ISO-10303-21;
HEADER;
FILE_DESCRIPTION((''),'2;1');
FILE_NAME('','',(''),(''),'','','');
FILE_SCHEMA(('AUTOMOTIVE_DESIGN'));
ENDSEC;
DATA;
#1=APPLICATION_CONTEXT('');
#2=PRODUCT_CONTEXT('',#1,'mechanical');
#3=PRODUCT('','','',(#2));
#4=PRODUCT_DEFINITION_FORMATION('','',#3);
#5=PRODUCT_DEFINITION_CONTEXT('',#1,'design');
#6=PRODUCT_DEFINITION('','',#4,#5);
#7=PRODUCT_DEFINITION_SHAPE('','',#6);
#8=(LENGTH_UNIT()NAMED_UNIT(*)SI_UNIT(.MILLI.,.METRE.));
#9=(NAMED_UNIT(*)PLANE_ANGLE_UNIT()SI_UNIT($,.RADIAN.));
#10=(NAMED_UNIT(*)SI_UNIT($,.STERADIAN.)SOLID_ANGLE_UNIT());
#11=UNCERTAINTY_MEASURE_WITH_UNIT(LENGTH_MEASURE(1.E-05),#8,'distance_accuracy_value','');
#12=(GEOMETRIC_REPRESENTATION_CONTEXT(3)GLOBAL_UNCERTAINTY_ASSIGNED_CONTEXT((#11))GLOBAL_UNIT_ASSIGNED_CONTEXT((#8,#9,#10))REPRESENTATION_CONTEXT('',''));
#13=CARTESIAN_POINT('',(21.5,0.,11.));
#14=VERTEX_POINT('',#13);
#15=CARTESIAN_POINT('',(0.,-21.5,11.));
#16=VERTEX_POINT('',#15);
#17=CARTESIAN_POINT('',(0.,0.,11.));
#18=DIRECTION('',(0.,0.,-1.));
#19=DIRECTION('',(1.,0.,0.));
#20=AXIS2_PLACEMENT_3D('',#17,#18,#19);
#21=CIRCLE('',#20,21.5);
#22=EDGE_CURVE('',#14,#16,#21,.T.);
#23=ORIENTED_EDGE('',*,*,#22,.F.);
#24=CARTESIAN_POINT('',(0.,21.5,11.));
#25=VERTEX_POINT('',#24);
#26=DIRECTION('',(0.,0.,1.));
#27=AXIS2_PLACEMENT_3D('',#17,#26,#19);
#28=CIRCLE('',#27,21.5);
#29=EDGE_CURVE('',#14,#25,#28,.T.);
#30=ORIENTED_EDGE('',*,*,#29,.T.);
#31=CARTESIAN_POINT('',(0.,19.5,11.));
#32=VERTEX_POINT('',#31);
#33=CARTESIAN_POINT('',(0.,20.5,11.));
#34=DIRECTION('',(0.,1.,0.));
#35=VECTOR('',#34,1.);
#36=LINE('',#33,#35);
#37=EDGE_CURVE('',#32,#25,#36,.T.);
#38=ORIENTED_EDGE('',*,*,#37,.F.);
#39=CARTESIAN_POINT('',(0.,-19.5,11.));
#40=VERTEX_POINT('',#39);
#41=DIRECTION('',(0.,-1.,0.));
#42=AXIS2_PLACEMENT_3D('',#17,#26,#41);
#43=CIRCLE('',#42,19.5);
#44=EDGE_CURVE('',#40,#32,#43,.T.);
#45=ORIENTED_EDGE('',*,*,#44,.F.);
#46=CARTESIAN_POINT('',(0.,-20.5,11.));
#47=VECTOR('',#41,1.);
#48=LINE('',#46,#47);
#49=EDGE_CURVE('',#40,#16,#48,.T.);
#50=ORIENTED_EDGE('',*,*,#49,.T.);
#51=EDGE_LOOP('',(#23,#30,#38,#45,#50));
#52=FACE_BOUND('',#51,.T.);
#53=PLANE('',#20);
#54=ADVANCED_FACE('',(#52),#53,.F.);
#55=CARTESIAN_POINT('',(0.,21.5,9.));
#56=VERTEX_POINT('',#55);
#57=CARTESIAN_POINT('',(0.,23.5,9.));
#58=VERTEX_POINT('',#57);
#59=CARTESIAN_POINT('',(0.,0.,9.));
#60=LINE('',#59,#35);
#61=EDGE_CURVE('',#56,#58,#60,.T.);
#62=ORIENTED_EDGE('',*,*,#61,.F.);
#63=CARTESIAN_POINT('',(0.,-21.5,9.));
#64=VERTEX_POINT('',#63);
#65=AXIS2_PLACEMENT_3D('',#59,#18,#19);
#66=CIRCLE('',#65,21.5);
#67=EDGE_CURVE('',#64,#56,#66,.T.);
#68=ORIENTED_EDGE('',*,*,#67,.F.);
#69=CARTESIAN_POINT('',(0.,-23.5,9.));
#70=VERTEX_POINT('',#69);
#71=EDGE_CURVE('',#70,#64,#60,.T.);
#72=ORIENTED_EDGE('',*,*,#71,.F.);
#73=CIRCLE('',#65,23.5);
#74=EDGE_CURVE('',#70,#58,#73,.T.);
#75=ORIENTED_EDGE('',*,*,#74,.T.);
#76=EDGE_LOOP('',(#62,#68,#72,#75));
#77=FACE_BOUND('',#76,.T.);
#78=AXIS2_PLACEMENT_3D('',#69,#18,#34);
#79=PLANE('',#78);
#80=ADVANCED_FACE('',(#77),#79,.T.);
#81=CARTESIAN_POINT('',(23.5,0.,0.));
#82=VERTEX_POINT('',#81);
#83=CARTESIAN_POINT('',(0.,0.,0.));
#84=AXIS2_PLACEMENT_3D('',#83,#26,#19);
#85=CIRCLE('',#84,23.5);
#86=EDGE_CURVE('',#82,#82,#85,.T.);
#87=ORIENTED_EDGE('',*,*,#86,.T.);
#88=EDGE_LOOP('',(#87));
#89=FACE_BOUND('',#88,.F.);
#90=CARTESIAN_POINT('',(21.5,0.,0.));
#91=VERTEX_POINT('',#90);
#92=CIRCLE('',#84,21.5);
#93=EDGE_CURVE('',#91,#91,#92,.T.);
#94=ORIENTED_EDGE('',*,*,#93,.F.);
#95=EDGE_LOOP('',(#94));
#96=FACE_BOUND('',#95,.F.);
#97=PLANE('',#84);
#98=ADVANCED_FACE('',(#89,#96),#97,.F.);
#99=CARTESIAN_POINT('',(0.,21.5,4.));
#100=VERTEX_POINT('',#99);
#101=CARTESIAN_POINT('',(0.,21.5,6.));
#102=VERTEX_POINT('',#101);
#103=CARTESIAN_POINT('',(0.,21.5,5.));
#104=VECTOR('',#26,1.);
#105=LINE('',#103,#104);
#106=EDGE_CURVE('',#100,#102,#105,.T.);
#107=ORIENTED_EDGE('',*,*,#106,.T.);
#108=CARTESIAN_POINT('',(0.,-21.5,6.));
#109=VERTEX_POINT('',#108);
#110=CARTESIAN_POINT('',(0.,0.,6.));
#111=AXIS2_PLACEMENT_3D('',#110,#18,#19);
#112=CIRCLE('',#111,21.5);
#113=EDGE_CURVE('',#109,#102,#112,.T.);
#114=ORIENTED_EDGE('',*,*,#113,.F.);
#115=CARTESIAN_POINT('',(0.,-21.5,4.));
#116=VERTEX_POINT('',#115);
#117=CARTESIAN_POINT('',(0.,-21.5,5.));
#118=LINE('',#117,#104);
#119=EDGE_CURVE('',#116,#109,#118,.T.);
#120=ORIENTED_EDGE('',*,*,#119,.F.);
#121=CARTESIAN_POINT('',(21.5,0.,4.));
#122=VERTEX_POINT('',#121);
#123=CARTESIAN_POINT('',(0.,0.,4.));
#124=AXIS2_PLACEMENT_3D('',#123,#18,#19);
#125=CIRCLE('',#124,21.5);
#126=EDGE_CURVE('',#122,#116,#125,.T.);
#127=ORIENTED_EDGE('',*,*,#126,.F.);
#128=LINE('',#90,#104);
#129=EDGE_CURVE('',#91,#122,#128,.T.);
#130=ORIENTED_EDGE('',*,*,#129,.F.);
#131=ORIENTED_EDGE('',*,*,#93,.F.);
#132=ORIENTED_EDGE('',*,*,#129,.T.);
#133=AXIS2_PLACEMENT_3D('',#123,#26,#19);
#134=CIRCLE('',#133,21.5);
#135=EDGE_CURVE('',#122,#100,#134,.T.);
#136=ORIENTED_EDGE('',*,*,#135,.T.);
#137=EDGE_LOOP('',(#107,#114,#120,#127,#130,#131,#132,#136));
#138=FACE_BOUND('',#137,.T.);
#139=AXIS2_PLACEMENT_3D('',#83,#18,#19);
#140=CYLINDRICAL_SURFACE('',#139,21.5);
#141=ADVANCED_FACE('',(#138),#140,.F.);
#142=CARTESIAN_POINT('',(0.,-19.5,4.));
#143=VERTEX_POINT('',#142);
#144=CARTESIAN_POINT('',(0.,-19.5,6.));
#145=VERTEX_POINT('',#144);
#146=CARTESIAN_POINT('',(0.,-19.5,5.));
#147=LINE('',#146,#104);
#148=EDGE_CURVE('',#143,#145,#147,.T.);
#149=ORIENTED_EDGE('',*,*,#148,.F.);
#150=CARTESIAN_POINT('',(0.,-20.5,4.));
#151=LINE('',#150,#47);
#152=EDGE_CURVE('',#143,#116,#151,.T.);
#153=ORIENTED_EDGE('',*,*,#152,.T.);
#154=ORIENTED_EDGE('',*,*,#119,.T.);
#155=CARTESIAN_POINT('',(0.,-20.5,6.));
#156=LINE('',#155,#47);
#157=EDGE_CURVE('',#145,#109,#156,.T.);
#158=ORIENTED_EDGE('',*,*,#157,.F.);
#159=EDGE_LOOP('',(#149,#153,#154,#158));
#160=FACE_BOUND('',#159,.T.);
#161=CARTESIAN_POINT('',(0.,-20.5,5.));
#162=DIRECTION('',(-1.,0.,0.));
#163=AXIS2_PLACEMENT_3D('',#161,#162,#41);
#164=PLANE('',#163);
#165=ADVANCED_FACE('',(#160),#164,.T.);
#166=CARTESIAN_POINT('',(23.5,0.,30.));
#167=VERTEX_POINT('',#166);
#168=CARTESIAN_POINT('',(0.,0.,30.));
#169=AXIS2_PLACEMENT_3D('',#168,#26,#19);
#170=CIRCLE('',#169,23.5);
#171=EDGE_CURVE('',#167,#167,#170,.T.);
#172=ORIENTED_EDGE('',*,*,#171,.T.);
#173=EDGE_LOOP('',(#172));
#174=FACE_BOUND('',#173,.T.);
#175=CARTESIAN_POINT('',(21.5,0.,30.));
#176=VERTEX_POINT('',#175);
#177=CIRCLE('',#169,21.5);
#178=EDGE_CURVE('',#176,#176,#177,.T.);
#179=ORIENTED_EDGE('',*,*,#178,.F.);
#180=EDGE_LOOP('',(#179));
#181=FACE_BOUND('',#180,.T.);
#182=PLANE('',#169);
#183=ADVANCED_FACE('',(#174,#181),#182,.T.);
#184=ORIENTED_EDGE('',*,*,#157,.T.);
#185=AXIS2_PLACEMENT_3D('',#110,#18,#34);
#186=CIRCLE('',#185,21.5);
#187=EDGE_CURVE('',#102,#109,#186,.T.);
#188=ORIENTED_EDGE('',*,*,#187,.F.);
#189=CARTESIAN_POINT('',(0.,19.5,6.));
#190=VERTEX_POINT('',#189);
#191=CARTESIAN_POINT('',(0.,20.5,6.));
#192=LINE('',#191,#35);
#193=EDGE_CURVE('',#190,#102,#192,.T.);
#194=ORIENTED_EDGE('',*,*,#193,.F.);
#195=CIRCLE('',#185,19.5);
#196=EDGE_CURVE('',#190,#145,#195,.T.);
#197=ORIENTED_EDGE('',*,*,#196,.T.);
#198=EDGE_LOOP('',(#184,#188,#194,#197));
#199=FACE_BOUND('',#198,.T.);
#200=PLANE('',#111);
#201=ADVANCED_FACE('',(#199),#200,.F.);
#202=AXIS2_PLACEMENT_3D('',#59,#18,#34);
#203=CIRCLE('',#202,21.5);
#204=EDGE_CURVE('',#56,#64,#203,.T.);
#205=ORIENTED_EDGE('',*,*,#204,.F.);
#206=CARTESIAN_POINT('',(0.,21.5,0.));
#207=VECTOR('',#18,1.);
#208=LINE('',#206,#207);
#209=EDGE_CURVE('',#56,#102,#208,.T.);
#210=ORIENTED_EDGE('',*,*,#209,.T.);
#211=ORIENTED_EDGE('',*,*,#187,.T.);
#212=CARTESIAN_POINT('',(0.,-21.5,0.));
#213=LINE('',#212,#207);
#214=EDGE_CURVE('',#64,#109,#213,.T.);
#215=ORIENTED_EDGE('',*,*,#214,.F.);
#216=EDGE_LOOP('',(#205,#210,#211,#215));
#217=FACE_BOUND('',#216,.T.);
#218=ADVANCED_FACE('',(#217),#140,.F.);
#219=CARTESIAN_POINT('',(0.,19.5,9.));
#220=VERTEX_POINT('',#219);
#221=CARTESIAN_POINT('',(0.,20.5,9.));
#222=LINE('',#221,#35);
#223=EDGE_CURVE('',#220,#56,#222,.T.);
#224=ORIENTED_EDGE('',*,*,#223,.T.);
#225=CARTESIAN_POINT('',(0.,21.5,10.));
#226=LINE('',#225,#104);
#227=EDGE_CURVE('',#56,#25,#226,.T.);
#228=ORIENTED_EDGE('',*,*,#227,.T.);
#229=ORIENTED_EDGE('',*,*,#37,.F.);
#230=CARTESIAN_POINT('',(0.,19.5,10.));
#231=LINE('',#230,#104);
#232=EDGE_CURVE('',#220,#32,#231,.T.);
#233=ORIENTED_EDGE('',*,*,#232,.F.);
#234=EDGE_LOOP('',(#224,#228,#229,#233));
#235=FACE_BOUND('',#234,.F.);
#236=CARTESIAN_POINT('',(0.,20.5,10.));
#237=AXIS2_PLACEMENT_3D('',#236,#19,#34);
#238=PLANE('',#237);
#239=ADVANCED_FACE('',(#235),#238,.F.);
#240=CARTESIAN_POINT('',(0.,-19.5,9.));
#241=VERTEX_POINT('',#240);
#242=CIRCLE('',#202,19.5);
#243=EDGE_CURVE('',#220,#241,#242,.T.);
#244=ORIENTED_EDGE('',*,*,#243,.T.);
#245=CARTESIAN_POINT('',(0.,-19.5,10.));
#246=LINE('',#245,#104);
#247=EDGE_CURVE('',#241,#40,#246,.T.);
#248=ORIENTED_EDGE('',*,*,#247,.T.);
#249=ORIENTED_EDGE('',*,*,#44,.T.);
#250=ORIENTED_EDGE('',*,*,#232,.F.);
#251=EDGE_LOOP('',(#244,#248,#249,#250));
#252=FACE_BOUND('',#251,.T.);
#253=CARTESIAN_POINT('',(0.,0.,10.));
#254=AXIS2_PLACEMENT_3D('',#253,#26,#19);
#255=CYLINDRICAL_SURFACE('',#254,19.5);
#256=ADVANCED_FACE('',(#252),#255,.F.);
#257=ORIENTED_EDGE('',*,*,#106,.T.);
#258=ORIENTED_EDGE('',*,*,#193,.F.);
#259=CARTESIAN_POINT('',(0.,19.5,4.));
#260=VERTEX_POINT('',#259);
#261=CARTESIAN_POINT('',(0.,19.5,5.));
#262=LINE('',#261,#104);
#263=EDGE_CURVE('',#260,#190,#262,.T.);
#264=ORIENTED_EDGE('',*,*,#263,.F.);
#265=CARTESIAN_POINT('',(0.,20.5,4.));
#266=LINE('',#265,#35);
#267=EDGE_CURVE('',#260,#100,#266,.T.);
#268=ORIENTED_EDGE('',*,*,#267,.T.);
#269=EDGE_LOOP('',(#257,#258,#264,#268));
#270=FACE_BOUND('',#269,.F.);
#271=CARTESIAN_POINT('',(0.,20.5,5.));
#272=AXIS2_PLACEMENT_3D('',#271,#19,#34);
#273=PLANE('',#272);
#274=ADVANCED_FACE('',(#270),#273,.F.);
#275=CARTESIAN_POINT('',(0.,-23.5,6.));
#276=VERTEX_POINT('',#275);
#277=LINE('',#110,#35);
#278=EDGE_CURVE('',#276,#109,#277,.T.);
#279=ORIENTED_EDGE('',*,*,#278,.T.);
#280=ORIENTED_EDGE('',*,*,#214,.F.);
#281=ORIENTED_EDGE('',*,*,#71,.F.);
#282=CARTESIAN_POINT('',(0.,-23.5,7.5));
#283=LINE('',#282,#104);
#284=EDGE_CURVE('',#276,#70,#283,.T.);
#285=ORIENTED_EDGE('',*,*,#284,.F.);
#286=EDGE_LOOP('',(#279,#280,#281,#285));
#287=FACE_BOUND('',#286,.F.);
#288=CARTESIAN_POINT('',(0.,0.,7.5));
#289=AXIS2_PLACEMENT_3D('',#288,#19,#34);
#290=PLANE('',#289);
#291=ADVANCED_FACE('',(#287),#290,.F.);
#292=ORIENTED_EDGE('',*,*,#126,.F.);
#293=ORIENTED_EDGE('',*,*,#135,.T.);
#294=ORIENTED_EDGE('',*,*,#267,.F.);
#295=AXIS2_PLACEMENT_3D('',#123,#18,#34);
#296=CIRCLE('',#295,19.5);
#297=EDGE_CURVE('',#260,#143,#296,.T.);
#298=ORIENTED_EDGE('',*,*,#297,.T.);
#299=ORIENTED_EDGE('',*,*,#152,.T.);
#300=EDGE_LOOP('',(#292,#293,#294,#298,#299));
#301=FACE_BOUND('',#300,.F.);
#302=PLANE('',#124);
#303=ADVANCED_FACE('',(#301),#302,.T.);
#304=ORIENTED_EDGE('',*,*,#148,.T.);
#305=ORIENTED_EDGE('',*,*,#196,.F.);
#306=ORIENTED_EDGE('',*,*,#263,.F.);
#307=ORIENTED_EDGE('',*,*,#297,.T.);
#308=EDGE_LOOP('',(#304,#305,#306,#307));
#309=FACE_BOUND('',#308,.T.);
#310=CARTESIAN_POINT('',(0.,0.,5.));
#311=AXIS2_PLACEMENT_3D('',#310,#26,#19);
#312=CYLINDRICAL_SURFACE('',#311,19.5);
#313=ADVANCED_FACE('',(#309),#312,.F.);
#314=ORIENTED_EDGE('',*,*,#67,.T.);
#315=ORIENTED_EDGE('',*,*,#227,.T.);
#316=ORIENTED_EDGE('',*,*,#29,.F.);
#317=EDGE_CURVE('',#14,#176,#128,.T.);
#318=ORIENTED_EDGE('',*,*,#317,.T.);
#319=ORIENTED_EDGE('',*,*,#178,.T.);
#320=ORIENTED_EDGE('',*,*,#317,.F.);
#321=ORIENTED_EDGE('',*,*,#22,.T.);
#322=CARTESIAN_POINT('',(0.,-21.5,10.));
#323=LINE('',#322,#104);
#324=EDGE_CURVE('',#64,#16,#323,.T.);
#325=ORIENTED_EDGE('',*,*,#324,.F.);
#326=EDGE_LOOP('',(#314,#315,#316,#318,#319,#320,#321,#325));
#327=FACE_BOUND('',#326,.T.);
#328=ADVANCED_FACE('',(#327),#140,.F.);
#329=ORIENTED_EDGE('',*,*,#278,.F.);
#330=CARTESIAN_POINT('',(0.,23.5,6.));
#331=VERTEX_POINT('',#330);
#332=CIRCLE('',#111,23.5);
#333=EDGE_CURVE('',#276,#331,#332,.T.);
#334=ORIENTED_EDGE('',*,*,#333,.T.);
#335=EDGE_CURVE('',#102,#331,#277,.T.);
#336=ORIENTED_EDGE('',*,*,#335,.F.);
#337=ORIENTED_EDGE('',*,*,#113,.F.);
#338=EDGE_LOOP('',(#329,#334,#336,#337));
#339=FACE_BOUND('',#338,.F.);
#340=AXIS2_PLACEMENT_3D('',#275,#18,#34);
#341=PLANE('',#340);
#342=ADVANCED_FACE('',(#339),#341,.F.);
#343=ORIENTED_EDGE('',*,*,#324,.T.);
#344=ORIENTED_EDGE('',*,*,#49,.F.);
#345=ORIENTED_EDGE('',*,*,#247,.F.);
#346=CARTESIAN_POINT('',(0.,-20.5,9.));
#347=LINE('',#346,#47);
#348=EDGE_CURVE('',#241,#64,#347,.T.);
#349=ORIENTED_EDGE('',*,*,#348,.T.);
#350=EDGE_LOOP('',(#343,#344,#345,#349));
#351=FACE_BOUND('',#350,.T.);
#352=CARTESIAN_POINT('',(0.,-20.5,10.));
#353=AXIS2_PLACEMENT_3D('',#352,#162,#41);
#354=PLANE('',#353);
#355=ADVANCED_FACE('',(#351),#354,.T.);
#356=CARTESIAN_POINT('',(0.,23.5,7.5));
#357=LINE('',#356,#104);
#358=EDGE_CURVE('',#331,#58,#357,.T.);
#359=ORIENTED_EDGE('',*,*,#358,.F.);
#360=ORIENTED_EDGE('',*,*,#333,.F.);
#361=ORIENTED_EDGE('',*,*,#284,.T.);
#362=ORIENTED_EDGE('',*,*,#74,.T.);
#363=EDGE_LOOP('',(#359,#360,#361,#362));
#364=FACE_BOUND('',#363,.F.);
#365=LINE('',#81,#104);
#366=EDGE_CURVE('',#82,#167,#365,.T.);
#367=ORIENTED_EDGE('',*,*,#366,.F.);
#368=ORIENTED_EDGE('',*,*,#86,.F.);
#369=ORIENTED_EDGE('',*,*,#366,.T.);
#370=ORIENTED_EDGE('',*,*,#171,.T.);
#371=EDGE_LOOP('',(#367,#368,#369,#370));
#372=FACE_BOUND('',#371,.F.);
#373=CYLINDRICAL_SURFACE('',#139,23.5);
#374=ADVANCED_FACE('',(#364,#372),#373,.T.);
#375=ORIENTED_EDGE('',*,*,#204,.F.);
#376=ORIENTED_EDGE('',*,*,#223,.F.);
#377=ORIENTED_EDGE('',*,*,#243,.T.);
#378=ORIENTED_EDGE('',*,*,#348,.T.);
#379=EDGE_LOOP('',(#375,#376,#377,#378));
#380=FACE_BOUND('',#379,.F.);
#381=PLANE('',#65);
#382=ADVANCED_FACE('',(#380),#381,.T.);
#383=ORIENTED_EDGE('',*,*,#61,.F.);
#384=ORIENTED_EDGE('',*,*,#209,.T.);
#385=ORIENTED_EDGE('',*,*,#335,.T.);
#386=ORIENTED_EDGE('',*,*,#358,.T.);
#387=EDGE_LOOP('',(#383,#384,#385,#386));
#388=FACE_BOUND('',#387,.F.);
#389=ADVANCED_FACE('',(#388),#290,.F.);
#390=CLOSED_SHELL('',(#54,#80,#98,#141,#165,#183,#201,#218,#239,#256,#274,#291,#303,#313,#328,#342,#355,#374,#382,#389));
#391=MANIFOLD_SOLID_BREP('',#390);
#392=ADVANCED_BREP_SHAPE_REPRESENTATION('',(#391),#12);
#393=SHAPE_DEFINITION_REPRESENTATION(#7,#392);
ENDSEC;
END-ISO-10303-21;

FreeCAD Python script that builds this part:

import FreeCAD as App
import Part
import Sketcher
from FreeCAD import Vector
Q = App.Units.Quantity

doc = App.newDocument("Part")
body = doc.addObject("PartDesign::Body", "Body")

sketch1 = doc.addObject("Sketcher::SketchObject", "Sketch")
body.addObject(sketch1)
sketch1.AttachmentSupport = (doc.XY_Plane, [""])
sketch1.MapMode = "FlatFace"
sketch1.addGeometry(Part.Circle(Vector(0, 0, 0), Vector(0, 0, 1), 23.5), False)
sketch1.addGeometry(Part.Circle(Vector(0, 0, 0), Vector(0, 0, 1), 21.5), False)
sketch1.addConstraint(Sketcher.Constraint("Coincident", 0, 3, -1, 1))
sketch1.addConstraint(Sketcher.Constraint("Coincident", 1, 3, -1, 1))
sketch1.addConstraint(Sketcher.Constraint("Diameter", 0, Q("47 mm")))
sketch1.addConstraint(Sketcher.Constraint("Diameter", 1, Q("43 mm")))
pad1 = doc.addObject("PartDesign::Pad", "Pad")
body.addObject(pad1)
pad1.Profile = sketch1
pad1.Length = 30

sketch2 = doc.addObject("Sketcher::SketchObject", "Sketch001")
body.addObject(sketch2)
sketch2.AttachmentSupport = (doc.YZ_Plane, [""])
sketch2.MapMode = "FlatFace"
sketch2.addGeometry(Part.LineSegment(Vector(-23.5, 9, 0), Vector(-23.5, 6, 0)), False)
sketch2.addGeometry(Part.LineSegment(Vector(-23.5, 6, 0), Vector(23.5, 6, 0)), False)
sketch2.addGeometry(Part.LineSegment(Vector(23.5, 6, 0), Vector(23.5, 9, 0)), False)
sketch2.addGeometry(Part.LineSegment(Vector(23.5, 9, 0), Vector(-23.5, 9, 0)), False)
sketch2.addConstraint(Sketcher.Constraint("Coincident", 0, 2, 1, 1))
sketch2.addConstraint(Sketcher.Constraint("Coincident", 1, 2, 2, 1))
sketch2.addConstraint(Sketcher.Constraint("Coincident", 2, 2, 3, 1))
sketch2.addConstraint(Sketcher.Constraint("Coincident", 3, 2, 0, 1))
sketch2.addConstraint(Sketcher.Constraint("Vertical", 0))
sketch2.addConstraint(Sketcher.Constraint("Horizontal", 1))
sketch2.addConstraint(Sketcher.Constraint("Vertical", 2))
sketch2.addConstraint(Sketcher.Constraint("Horizontal", 3))
sketch2.addConstraint(Sketcher.Constraint("DistanceX", 1, 1, 1, 2, Q("47 mm")))
sketch2.addConstraint(Sketcher.Constraint("DistanceY", 0, 2, 0, 1, Q("3 mm")))
sketch2.addConstraint(Sketcher.Constraint("DistanceY", -1, 1, 0, 2, Q("6 mm")))
sketch2.addConstraint(Sketcher.Constraint("DistanceX", 0, 2, -1, 1, Q("23.5 mm")))
pocket1 = doc.addObject("PartDesign::Pocket", "Pocket")
body.addObject(pocket1)
pocket1.Profile = sketch2
pocket1.Type = "ThroughAll"

sketch3 = doc.addObject("Sketcher::SketchObject", "Sketch002")
body.addObject(sketch3)
sketch3.AttachmentSupport = (doc.XZ_Plane, [""])
sketch3.MapMode = "FlatFace"
sketch3.addGeometry(Part.LineSegment(Vector(19.5, 11, 0), Vector(19.5, 9, 0)), False)
sketch3.addGeometry(Part.LineSegment(Vector(19.5, 9, 0), Vector(21.5, 9, 0)), False)
sketch3.addGeometry(Part.LineSegment(Vector(21.5, 9, 0), Vector(21.5, 11, 0)), False)
sketch3.addGeometry(Part.LineSegment(Vector(21.5, 11, 0), Vector(19.5, 11, 0)), False)
sketch3.addGeometry(Part.LineSegment(Vector(19.5, 6, 0), Vector(19.5, 4, 0)), False)
sketch3.addGeometry(Part.LineSegment(Vector(19.5, 4, 0), Vector(21.5, 4, 0)), False)
sketch3.addGeometry(Part.LineSegment(Vector(21.5, 4, 0), Vector(21.5, 6, 0)), False)
sketch3.addGeometry(Part.LineSegment(Vector(21.5, 6, 0), Vector(19.5, 6, 0)), False)
sketch3.addConstraint(Sketcher.Constraint("Coincident", 0, 2, 1, 1))
sketch3.addConstraint(Sketcher.Constraint("Coincident", 1, 2, 2, 1))
sketch3.addConstraint(Sketcher.Constraint("Coincident", 2, 2, 3, 1))
sketch3.addConstraint(Sketcher.Constraint("Coincident", 3, 2, 0, 1))
sketch3.addConstraint(Sketcher.Constraint("Coincident", 4, 2, 5, 1))
sketch3.addConstraint(Sketcher.Constraint("Coincident", 5, 2, 6, 1))
sketch3.addConstraint(Sketcher.Constraint("Coincident", 6, 2, 7, 1))
sketch3.addConstraint(Sketcher.Constraint("Coincident", 7, 2, 4, 1))
sketch3.addConstraint(Sketcher.Constraint("Vertical", 0))
sketch3.addConstraint(Sketcher.Constraint("Horizontal", 1))
sketch3.addConstraint(Sketcher.Constraint("Vertical", 2))
sketch3.addConstraint(Sketcher.Constraint("Horizontal", 3))
sketch3.addConstraint(Sketcher.Constraint("Vertical", 4))
sketch3.addConstraint(Sketcher.Constraint("Horizontal", 5))
sketch3.addConstraint(Sketcher.Constraint("Vertical", 6))
sketch3.addConstraint(Sketcher.Constraint("Horizontal", 7))
sketch3.addConstraint(Sketcher.Constraint("Vertical", 3, 2, 4, 2))
sketch3.addConstraint(Sketcher.Constraint("Vertical", 2, 2, 5, 2))
sketch3.addConstraint(Sketcher.Constraint("Equal", 7, 0))
sketch3.addConstraint(Sketcher.Constraint("Equal", 2, 4))
sketch3.addConstraint(Sketcher.Constraint("DistanceX", 1, 1, 1, 2, Q("2 mm")))
sketch3.addConstraint(Sketcher.Constraint("DistanceY", -1, 1, 0, 2, Q("9 mm")))
sketch3.addConstraint(Sketcher.Constraint("DistanceY", -1, 1, 4, 2, Q("4 mm")))
sketch3.addConstraint(Sketcher.Constraint("DistanceX", -1, 1, 0, 2, Q("19.5 mm")))
revolution = doc.addObject("PartDesign::Revolution", "Revolution")
body.addObject(revolution)
revolution.Profile = sketch3
revolution.ReferenceAxis = (sketch3, ["V_Axis"])
revolution.Angle = 90

sketch4 = doc.addObject("Sketcher::SketchObject", "Sketch003")
body.addObject(sketch4)
sketch4.AttachmentSupport = (doc.XZ_Plane, [""])
sketch4.MapMode = "FlatFace"
sketch4.addGeometry(Part.LineSegment(Vector(19.5, 11, 0), Vector(19.5, 9, 0)), False)
sketch4.addGeometry(Part.LineSegment(Vector(19.5, 9, 0), Vector(21.5, 9, 0)), False)
sketch4.addGeometry(Part.LineSegment(Vector(21.5, 9, 0), Vector(21.5, 11, 0)), False)
sketch4.addGeometry(Part.LineSegment(Vector(21.5, 11, 0), Vector(19.5, 11, 0)), False)
sketch4.addGeometry(Part.LineSegment(Vector(19.5, 6, 0), Vector(19.5, 4, 0)), False)
sketch4.addGeometry(Part.LineSegment(Vector(19.5, 4, 0), Vector(21.5, 4, 0)), False)
sketch4.addGeometry(Part.LineSegment(Vector(21.5, 4, 0), Vector(21.5, 6, 0)), False)
sketch4.addGeometry(Part.LineSegment(Vector(21.5, 6, 0), Vector(19.5, 6, 0)), False)
sketch4.addConstraint(Sketcher.Constraint("Coincident", 0, 2, 1, 1))
sketch4.addConstraint(Sketcher.Constraint("Coincident", 1, 2, 2, 1))
sketch4.addConstraint(Sketcher.Constraint("Coincident", 2, 2, 3, 1))
sketch4.addConstraint(Sketcher.Constraint("Coincident", 3, 2, 0, 1))
sketch4.addConstraint(Sketcher.Constraint("Coincident", 4, 2, 5, 1))
sketch4.addConstraint(Sketcher.Constraint("Coincident", 5, 2, 6, 1))
sketch4.addConstraint(Sketcher.Constraint("Coincident", 6, 2, 7, 1))
sketch4.addConstraint(Sketcher.Constraint("Coincident", 7, 2, 4, 1))
sketch4.addConstraint(Sketcher.Constraint("Vertical", 0))
sketch4.addConstraint(Sketcher.Constraint("Horizontal", 1))
sketch4.addConstraint(Sketcher.Constraint("Vertical", 2))
sketch4.addConstraint(Sketcher.Constraint("Horizontal", 3))
sketch4.addConstraint(Sketcher.Constraint("Vertical", 4))
sketch4.addConstraint(Sketcher.Constraint("Horizontal", 5))
sketch4.addConstraint(Sketcher.Constraint("Vertical", 6))
sketch4.addConstraint(Sketcher.Constraint("Horizontal", 7))
sketch4.addConstraint(Sketcher.Constraint("Vertical", 3, 2, 4, 2))
sketch4.addConstraint(Sketcher.Constraint("Vertical", 2, 2, 5, 2))
sketch4.addConstraint(Sketcher.Constraint("Equal", 7, 0))
sketch4.addConstraint(Sketcher.Constraint("Equal", 2, 4))
sketch4.addConstraint(Sketcher.Constraint("DistanceX", 1, 1, 1, 2, Q("2 mm")))
sketch4.addConstraint(Sketcher.Constraint("DistanceY", -1, 1, 0, 2, Q("9 mm")))
sketch4.addConstraint(Sketcher.Constraint("DistanceY", -1, 1, 4, 2, Q("4 mm")))
sketch4.addConstraint(Sketcher.Constraint("DistanceX", -1, 1, 0, 2, Q("19.5 mm")))
revolution2 = doc.addObject("PartDesign::Revolution", "Revolution001")
body.addObject(revolution2)
revolution2.Profile = sketch4
revolution2.ReferenceAxis = (sketch4, ["V_Axis"])
revolution2.Angle = 90
revolution2.Reversed = True

doc.recompute()
